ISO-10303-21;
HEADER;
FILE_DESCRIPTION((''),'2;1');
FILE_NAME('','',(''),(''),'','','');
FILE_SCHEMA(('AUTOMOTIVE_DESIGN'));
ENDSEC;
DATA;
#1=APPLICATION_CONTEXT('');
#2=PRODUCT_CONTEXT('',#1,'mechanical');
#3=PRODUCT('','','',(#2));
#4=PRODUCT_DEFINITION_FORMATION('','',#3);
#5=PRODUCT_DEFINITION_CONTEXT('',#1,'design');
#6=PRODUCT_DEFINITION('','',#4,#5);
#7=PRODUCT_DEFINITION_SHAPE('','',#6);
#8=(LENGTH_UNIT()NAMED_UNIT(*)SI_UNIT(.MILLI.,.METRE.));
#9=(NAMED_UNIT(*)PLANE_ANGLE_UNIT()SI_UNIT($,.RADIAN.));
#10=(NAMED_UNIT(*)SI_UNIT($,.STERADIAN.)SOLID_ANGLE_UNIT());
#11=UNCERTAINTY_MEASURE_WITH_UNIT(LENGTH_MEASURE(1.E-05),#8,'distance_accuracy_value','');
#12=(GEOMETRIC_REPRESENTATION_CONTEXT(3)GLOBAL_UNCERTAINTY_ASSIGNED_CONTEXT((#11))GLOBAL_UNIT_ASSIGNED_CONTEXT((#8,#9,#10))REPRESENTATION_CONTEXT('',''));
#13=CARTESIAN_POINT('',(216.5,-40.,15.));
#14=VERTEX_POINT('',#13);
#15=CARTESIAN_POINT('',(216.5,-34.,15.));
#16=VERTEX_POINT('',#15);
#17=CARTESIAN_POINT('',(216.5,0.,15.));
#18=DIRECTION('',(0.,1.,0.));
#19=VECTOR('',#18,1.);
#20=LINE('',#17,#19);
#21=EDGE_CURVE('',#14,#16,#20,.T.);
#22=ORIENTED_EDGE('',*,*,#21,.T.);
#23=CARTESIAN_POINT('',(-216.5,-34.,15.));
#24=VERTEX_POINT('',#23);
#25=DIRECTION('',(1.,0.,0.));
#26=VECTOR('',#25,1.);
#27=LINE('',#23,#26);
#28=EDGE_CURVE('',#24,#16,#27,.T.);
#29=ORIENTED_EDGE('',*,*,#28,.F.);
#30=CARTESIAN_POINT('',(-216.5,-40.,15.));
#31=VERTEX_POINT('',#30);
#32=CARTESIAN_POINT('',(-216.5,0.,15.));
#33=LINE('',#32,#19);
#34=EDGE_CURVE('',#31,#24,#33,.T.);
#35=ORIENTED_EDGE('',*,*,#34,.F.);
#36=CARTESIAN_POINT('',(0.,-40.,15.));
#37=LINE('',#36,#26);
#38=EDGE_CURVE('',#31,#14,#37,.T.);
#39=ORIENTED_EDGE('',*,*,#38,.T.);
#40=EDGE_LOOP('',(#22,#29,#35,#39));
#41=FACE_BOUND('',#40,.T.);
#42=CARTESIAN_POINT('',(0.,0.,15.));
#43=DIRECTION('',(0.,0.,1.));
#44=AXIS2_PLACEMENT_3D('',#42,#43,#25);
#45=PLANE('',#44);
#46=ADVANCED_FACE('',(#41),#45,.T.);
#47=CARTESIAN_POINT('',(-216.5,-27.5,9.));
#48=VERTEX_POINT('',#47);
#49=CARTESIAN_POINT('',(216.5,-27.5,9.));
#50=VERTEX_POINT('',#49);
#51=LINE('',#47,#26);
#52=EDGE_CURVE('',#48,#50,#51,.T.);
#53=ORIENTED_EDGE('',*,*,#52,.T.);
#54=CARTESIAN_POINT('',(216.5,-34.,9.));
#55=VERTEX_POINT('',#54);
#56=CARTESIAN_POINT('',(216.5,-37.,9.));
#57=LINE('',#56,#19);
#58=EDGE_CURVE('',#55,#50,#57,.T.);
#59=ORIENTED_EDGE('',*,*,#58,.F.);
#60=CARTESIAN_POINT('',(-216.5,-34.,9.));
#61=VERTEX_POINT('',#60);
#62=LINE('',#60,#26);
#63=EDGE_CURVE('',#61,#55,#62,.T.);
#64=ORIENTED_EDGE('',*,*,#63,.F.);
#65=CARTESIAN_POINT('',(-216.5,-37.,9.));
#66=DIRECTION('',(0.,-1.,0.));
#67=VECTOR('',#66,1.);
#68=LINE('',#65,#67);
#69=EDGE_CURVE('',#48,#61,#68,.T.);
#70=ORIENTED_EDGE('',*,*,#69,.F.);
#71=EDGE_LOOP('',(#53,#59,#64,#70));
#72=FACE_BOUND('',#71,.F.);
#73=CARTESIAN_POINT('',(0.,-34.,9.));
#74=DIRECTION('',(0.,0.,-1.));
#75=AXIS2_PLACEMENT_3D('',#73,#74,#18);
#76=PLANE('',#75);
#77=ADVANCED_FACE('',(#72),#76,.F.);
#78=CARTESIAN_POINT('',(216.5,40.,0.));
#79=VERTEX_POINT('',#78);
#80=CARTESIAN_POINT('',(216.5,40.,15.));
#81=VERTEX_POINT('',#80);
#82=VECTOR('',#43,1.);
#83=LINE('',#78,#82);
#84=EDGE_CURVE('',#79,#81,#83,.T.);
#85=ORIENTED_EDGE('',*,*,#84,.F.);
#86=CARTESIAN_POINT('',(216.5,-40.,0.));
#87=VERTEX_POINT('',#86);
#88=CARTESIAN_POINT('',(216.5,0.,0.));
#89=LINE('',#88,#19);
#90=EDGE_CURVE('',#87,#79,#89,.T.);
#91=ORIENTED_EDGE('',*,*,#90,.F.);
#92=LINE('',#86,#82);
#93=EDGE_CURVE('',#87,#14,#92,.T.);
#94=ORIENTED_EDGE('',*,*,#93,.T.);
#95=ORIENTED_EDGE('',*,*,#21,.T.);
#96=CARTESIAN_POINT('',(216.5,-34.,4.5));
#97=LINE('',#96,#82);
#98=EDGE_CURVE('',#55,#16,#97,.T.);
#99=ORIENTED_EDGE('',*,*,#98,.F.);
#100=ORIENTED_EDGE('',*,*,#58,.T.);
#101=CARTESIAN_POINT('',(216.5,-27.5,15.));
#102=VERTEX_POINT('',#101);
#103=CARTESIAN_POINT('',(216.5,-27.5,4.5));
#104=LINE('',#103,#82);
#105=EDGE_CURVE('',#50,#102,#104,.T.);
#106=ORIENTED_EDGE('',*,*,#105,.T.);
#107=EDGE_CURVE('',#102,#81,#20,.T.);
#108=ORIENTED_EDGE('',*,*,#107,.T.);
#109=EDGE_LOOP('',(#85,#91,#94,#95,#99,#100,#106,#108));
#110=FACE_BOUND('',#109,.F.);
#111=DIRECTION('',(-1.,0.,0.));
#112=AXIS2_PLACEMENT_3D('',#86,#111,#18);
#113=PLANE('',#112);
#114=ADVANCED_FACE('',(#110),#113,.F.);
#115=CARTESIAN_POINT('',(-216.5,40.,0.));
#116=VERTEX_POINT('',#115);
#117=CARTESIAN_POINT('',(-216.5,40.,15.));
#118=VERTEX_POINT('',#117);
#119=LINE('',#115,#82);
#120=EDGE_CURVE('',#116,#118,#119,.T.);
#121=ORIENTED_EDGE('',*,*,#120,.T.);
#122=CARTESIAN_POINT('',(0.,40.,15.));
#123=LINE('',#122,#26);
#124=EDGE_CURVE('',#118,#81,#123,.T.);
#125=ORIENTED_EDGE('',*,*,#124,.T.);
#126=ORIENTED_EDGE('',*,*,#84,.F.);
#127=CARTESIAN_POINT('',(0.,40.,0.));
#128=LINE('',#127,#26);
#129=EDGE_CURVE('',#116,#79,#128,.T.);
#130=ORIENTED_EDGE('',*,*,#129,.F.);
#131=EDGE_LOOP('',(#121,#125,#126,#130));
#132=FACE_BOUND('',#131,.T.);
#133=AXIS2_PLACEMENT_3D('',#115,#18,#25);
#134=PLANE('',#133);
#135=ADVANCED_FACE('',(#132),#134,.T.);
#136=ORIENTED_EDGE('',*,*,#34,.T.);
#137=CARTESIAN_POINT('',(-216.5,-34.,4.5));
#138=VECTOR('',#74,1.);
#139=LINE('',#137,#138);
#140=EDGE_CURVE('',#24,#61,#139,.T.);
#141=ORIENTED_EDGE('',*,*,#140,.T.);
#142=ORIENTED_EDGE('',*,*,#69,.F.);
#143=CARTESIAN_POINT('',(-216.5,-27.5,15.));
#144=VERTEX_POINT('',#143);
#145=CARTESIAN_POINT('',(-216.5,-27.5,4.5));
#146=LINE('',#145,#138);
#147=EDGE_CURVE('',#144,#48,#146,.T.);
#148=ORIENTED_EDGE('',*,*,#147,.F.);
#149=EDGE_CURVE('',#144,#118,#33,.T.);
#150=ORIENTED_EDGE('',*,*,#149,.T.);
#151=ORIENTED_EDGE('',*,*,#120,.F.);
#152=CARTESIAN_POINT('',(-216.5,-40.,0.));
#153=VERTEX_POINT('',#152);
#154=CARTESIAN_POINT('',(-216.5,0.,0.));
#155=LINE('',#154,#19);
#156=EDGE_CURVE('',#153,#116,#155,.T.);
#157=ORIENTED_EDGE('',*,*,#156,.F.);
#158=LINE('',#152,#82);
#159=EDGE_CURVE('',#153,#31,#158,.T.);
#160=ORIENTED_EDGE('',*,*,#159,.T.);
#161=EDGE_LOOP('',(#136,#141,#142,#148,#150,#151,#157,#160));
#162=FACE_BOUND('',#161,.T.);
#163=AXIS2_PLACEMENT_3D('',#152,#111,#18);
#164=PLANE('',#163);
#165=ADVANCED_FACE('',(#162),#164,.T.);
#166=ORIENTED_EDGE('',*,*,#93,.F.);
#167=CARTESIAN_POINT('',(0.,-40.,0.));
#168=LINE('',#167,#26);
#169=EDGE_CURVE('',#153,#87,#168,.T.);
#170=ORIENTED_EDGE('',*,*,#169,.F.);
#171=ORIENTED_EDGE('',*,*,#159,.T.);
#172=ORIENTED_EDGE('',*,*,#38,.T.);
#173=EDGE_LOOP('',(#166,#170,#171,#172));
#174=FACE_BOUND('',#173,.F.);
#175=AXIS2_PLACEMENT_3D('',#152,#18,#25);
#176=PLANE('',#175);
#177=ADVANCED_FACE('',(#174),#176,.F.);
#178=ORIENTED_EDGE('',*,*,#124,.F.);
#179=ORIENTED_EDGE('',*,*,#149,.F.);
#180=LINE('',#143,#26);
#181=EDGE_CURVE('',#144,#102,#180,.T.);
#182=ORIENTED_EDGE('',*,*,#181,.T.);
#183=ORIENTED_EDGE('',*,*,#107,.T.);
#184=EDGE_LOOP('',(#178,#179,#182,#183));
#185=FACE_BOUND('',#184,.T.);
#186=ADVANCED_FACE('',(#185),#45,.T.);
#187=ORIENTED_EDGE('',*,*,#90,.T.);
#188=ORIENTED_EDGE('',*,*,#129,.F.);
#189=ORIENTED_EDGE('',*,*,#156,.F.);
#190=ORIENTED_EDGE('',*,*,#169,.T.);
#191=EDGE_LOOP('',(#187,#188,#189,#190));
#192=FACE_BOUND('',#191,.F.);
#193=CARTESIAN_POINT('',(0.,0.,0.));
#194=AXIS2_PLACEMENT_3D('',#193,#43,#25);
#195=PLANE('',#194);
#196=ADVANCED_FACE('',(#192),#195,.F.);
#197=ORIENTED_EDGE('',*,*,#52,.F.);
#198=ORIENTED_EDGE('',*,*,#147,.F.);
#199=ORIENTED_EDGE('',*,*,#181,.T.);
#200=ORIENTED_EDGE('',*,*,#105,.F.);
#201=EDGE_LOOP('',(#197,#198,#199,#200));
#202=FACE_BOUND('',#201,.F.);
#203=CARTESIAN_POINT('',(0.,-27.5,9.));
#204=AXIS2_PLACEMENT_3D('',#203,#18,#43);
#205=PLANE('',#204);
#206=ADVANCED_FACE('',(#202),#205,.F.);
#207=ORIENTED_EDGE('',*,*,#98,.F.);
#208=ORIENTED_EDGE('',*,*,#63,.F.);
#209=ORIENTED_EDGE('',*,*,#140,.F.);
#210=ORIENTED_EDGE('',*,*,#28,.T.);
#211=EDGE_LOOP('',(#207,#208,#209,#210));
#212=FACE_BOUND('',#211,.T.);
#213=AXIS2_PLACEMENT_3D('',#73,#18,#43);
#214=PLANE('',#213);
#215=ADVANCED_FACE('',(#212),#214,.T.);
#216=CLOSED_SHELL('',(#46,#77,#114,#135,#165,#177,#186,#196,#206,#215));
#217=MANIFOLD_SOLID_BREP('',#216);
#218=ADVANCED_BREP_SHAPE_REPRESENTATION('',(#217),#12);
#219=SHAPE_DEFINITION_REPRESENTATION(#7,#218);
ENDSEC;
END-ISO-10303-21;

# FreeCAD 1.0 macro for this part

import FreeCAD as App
import Part
import Sketcher


def add_polygon(sketch, points):
    """Adds a closed chain of lines whose ends are joined by coincident constraints."""
    first, n = sketch.GeometryCount, len(points)
    for a, b in zip(points, points[1:] + points[:1]):
        sketch.addGeometry(Part.LineSegment(App.Vector(*a, 0), App.Vector(*b, 0)), False)
    for i in range(n):
        sketch.addConstraint(Sketcher.Constraint("Coincident", first + i, 2, first + (i + 1) % n, 1))

doc = App.newDocument("Part")
body = doc.addObject("PartDesign::Body", "Body")

# Sketch on XY plane
sketch1 = body.newObject("Sketcher::SketchObject", "Sketch")
sketch1.AttachmentSupport = (doc.getObject("XY_Plane"), [""])
sketch1.MapMode = "FlatFace"
add_polygon(sketch1, [(-216.5, 40), (-216.5, -40), (216.5, -40), (216.5, 40)])  # lines 0-3
sketch1.addConstraint([
    Sketcher.Constraint("Vertical", 0),
    Sketcher.Constraint("Horizontal", 1),
    Sketcher.Constraint("Vertical", 2),
    Sketcher.Constraint("Horizontal", 3),
    Sketcher.Constraint("Symmetric", 0, 2, 2, 2, -1, 1),
    Sketcher.Constraint("DistanceX", 1, 1, 1, 2, 433.0),
    Sketcher.Constraint("DistanceY", 0, 2, 0, 1, 80.0),
])
pad1 = body.newObject("PartDesign::Pad", "Pad")
pad1.Profile = sketch1
pad1.Length = 15

# Sketch on YZ plane
sketch2 = body.newObject("Sketcher::SketchObject", "Sketch001")
sketch2.AttachmentSupport = (doc.getObject("YZ_Plane"), [""])
sketch2.MapMode = "FlatFace"
add_polygon(sketch2, [(-34, 15), (-34, 9), (-27.5, 9), (-27.5, 15)])  # lines 0-3
sketch2.addConstraint([
    Sketcher.Constraint("Vertical", 0),
    Sketcher.Constraint("Horizontal", 1),
    Sketcher.Constraint("Vertical", 2),
    Sketcher.Constraint("Horizontal", 3),
    Sketcher.Constraint("DistanceY", 0, 2, 0, 1, 6.0),
    Sketcher.Constraint("DistanceX", 1, 1, 1, 2, 6.5),
    Sketcher.Constraint("DistanceX", 0, 2, -1, 1, 34.0),
    Sketcher.Constraint("DistanceY", -1, 1, 0, 2, 9.0),
])
pocket1 = body.newObject("PartDesign::Pocket", "Pocket")
pocket1.Profile = sketch2
pocket1.Type = "ThroughAll"
pocket1.Midplane = True

doc.recompute()
